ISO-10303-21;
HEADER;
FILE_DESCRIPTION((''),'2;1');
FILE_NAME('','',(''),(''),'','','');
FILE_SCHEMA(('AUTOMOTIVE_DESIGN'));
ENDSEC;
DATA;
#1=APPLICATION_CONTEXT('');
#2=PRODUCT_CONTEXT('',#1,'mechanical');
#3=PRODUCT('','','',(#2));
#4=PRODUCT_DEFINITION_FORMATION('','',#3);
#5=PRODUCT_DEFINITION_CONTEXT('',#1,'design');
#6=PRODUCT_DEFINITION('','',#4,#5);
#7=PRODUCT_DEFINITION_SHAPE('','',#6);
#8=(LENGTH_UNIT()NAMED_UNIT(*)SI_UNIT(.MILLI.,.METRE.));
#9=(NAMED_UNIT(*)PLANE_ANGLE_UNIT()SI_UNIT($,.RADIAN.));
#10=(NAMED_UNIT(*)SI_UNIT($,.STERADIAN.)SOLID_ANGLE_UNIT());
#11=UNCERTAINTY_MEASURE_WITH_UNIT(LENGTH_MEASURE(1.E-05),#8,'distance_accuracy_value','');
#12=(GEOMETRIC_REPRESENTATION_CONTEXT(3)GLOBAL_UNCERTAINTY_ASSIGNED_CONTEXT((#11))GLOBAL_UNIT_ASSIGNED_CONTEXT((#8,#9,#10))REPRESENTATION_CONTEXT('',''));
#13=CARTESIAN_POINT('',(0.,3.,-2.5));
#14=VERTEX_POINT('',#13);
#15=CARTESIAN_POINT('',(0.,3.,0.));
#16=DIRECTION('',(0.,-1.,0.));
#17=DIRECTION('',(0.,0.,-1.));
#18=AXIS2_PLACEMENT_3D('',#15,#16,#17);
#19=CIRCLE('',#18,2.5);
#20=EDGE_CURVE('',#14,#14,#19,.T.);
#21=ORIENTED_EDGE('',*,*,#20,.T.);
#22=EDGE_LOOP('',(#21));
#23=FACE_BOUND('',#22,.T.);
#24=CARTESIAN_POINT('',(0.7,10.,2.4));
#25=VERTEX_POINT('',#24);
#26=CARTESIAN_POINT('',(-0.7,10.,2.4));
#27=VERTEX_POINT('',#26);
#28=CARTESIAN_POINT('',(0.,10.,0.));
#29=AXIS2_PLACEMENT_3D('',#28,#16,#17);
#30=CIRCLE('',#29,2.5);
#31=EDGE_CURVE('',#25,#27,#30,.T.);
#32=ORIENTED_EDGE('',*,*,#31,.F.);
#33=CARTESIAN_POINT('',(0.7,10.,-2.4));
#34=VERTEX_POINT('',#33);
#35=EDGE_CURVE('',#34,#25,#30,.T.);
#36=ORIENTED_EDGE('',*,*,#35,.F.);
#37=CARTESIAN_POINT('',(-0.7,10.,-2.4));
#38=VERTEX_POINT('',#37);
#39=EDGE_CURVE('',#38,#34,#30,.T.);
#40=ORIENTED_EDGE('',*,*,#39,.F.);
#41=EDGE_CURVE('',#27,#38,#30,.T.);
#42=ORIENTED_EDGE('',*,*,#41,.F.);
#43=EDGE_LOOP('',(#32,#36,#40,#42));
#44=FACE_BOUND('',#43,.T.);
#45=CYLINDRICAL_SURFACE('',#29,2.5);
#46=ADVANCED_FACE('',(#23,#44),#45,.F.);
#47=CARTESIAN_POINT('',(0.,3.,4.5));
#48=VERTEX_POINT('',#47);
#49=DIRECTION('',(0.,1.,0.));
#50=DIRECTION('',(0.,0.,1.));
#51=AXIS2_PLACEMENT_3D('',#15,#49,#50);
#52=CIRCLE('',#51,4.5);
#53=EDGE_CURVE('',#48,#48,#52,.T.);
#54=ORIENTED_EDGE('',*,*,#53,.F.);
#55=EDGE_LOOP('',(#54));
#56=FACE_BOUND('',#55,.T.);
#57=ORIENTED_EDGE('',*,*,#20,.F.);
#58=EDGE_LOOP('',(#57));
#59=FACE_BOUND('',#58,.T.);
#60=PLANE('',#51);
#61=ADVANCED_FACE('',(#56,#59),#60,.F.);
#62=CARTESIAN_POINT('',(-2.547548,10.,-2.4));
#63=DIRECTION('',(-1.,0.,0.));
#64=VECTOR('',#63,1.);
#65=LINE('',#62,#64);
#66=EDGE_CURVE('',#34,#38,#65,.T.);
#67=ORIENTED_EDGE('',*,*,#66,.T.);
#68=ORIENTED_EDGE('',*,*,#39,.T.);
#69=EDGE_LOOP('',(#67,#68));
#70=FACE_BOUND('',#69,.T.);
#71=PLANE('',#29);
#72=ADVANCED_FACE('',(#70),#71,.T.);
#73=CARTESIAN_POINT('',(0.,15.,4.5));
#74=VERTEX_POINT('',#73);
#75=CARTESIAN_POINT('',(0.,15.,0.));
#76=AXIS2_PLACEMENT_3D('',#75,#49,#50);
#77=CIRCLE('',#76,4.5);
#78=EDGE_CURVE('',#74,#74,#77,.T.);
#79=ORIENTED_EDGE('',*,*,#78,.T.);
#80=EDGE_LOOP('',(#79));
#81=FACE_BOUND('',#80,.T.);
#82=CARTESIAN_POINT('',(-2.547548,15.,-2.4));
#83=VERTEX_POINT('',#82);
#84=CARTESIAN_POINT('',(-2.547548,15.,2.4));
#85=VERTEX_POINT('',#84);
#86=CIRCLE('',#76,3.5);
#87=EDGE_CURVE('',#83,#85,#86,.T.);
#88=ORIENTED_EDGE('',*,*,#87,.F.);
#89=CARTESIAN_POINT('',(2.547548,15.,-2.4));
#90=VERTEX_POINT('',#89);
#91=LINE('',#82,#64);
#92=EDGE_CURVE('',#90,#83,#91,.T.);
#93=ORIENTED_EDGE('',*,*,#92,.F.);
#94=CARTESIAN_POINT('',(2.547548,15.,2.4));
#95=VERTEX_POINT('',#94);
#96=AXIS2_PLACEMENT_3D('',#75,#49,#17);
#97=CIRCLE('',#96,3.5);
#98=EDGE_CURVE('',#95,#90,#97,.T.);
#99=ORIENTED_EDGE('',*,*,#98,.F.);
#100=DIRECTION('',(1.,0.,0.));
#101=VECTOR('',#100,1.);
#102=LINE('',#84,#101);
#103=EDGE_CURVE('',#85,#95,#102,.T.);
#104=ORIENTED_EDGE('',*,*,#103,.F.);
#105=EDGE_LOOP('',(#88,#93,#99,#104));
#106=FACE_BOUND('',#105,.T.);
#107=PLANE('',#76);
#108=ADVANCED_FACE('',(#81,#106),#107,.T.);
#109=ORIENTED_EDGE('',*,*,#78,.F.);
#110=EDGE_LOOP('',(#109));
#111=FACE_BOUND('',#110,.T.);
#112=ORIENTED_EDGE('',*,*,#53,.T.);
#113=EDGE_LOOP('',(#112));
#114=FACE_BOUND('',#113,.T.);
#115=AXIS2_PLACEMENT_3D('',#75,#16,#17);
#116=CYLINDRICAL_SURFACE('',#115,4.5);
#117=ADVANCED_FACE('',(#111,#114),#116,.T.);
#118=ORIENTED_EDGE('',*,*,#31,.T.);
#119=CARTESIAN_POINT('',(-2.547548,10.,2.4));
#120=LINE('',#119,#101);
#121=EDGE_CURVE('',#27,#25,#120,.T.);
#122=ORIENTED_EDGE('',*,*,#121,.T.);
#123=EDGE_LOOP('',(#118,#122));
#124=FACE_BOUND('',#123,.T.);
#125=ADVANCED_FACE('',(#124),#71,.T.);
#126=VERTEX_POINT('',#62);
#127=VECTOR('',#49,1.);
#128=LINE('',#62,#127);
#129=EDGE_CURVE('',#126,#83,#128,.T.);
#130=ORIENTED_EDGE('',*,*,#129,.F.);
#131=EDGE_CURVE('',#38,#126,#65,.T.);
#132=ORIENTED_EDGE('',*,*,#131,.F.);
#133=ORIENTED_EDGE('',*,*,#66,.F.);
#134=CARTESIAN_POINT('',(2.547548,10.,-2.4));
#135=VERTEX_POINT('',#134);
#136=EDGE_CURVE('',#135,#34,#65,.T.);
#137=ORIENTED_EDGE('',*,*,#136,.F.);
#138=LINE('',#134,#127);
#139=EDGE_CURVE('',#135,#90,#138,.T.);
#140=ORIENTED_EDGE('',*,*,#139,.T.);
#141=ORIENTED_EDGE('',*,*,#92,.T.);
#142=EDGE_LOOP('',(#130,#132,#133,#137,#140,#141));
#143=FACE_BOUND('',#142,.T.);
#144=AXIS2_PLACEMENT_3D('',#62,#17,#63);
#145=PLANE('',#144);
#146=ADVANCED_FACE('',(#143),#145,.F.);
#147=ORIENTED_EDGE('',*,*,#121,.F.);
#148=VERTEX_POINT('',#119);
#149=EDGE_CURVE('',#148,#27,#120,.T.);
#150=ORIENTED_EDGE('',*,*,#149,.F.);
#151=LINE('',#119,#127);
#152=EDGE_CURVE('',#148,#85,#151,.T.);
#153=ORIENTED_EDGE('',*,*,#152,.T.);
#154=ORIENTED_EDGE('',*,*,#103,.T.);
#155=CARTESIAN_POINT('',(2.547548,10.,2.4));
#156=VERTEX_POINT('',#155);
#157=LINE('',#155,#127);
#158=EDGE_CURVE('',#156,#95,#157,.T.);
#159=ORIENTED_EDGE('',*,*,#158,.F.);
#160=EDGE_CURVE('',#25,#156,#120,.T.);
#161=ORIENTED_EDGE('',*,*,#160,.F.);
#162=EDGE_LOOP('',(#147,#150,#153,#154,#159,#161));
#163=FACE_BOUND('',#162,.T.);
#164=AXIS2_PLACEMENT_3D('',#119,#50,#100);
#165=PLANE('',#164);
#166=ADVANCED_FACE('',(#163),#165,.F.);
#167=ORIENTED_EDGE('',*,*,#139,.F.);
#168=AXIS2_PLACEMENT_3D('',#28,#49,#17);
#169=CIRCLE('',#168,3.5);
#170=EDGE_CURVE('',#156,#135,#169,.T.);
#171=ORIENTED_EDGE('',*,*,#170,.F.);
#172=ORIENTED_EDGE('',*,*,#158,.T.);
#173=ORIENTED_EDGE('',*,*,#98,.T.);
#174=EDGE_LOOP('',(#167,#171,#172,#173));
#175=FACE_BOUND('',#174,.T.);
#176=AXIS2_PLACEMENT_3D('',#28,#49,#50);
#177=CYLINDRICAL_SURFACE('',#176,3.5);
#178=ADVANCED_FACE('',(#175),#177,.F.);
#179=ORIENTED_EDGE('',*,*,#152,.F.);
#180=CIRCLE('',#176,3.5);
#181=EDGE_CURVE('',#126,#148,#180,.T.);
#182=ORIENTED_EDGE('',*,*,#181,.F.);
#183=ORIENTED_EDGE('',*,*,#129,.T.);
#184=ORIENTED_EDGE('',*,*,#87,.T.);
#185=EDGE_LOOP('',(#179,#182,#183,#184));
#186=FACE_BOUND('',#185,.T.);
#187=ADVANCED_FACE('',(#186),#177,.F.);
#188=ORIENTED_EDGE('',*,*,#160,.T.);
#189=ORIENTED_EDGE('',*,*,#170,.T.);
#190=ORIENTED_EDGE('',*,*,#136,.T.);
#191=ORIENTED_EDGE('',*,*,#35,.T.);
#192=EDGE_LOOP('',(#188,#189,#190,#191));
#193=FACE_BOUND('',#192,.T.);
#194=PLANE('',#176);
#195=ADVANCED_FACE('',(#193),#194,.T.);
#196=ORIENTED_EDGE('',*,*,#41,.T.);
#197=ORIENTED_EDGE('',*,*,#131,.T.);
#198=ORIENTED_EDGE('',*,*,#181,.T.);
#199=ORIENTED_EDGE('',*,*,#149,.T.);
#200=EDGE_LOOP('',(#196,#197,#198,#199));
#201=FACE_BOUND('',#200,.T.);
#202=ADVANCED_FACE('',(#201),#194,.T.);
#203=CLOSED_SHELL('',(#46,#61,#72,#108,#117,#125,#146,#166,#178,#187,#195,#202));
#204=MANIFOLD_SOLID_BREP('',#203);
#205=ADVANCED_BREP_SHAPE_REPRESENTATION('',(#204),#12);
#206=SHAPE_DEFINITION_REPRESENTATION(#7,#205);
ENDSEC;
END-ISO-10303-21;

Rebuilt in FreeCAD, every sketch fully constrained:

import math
import FreeCAD as App
import Part
import Sketcher

V = App.Vector

doc = App.newDocument("Part")
params = doc.addObject("Spreadsheet::Sheet", "Params")
for row, (alias, value) in enumerate([
    ("sketch1_diameter", "9 mm"),
    ("pad1_length", "12 mm"),
    ("sketch2_radius", "3.5 mm"),
    ("pocket1_length", "5 mm"),
    ("sketch3_diameter", "5 mm"),
    ("pocket2_length", "7 mm"),
], start=1):
    params.set(f"A{row}", alias)
    params.set(f"B{row}", "=" + value)
    params.setAlias(f"B{row}", alias)

body = doc.addObject("PartDesign::Body", "Body")

sketch1 = doc.addObject("Sketcher::SketchObject", "Sketch")
body.addObject(sketch1)
sketch1.AttachmentSupport = (doc.XZ_Plane, [""])
sketch1.MapMode = "FlatFace"
sketch1.AttachmentOffset = App.Placement(V(0, 0, -3), App.Rotation())
sketch1.addGeometry(Part.Circle(V(0, 0, 0), V(0, 0, 1), 4.5), False)
sketch1.addConstraint(Sketcher.Constraint("Coincident", 0, 3, -1, 1))
sketch1.addConstraint(Sketcher.Constraint("Diameter", 0, 9.0))
sketch1.setExpression("Constraints[1]", "Params.sketch1_diameter")
pad1 = doc.addObject("PartDesign::Pad", "Pad")
body.addObject(pad1)
pad1.Profile = sketch1
pad1.setExpression("Length", "Params.pad1_length")
pad1.Reversed = True

sketch2 = doc.addObject("Sketcher::SketchObject", "Sketch001")
body.addObject(sketch2)
sketch2.AttachmentSupport = (doc.XZ_Plane, [""])
sketch2.MapMode = "FlatFace"
sketch2.AttachmentOffset = App.Placement(V(0, 0, -15), App.Rotation())
sketch2.addGeometry(Part.LineSegment(V(2.5, -2.4, 0), V(-2.5, -2.4, 0)), False)
sketch2.addGeometry(Part.ArcOfCircle(Part.Circle(V(0, 0, 0), V(0, 0, 1), 3.5), math.radians(137), math.radians(223)), False)
sketch2.addGeometry(Part.LineSegment(V(-2.5, 2.4, 0), V(2.5, 2.4, 0)), False)
sketch2.addGeometry(Part.ArcOfCircle(Part.Circle(V(0, 0, 0), V(0, 0, 1), 3.5), math.radians(-43), math.radians(43)), False)
sketch2.addConstraint(Sketcher.Constraint("Coincident", 0, 2, 1, 2))
sketch2.addConstraint(Sketcher.Constraint("Coincident", 1, 1, 2, 1))
sketch2.addConstraint(Sketcher.Constraint("Coincident", 2, 2, 3, 2))
sketch2.addConstraint(Sketcher.Constraint("Coincident", 3, 1, 0, 1))
sketch2.addConstraint(Sketcher.Constraint("Horizontal", 0))
sketch2.addConstraint(Sketcher.Constraint("Horizontal", 2))
sketch2.addConstraint(Sketcher.Constraint("Coincident", 1, 3, -1, 1))
sketch2.addConstraint(Sketcher.Constraint("Coincident", 3, 3, -1, 1))
sketch2.addConstraint(Sketcher.Constraint("Equal", 1, 3))
sketch2.addConstraint(Sketcher.Constraint("Vertical", 0, 2, 1, 1))
sketch2.addConstraint(Sketcher.Constraint("Radius", 1, 3.5))
sketch2.addConstraint(Sketcher.Constraint("DistanceY", 0, 2, -1, 1, 2.4))
sketch2.setExpression("Constraints[10]", "Params.sketch2_radius")
pocket1 = doc.addObject("PartDesign::Pocket", "Pocket")
body.addObject(pocket1)
pocket1.Profile = sketch2
pocket1.setExpression("Length", "Params.pocket1_length")
pocket1.Reversed = True

sketch3 = doc.addObject("Sketcher::SketchObject", "Sketch002")
body.addObject(sketch3)
sketch3.AttachmentSupport = (doc.XZ_Plane, [""])
sketch3.MapMode = "FlatFace"
sketch3.AttachmentOffset = App.Placement(V(0, 0, -3), App.Rotation())
sketch3.addGeometry(Part.Circle(V(0, 0, 0), V(0, 0, 1), 2.5), False)
sketch3.addConstraint(Sketcher.Constraint("Coincident", 0, 3, -1, 1))
sketch3.addConstraint(Sketcher.Constraint("Diameter", 0, 5.0))
sketch3.setExpression("Constraints[1]", "Params.sketch3_diameter")
pocket2 = doc.addObject("PartDesign::Pocket", "Pocket001")
body.addObject(pocket2)
pocket2.Profile = sketch3
pocket2.setExpression("Length", "Params.pocket2_length")

doc.recompute()
